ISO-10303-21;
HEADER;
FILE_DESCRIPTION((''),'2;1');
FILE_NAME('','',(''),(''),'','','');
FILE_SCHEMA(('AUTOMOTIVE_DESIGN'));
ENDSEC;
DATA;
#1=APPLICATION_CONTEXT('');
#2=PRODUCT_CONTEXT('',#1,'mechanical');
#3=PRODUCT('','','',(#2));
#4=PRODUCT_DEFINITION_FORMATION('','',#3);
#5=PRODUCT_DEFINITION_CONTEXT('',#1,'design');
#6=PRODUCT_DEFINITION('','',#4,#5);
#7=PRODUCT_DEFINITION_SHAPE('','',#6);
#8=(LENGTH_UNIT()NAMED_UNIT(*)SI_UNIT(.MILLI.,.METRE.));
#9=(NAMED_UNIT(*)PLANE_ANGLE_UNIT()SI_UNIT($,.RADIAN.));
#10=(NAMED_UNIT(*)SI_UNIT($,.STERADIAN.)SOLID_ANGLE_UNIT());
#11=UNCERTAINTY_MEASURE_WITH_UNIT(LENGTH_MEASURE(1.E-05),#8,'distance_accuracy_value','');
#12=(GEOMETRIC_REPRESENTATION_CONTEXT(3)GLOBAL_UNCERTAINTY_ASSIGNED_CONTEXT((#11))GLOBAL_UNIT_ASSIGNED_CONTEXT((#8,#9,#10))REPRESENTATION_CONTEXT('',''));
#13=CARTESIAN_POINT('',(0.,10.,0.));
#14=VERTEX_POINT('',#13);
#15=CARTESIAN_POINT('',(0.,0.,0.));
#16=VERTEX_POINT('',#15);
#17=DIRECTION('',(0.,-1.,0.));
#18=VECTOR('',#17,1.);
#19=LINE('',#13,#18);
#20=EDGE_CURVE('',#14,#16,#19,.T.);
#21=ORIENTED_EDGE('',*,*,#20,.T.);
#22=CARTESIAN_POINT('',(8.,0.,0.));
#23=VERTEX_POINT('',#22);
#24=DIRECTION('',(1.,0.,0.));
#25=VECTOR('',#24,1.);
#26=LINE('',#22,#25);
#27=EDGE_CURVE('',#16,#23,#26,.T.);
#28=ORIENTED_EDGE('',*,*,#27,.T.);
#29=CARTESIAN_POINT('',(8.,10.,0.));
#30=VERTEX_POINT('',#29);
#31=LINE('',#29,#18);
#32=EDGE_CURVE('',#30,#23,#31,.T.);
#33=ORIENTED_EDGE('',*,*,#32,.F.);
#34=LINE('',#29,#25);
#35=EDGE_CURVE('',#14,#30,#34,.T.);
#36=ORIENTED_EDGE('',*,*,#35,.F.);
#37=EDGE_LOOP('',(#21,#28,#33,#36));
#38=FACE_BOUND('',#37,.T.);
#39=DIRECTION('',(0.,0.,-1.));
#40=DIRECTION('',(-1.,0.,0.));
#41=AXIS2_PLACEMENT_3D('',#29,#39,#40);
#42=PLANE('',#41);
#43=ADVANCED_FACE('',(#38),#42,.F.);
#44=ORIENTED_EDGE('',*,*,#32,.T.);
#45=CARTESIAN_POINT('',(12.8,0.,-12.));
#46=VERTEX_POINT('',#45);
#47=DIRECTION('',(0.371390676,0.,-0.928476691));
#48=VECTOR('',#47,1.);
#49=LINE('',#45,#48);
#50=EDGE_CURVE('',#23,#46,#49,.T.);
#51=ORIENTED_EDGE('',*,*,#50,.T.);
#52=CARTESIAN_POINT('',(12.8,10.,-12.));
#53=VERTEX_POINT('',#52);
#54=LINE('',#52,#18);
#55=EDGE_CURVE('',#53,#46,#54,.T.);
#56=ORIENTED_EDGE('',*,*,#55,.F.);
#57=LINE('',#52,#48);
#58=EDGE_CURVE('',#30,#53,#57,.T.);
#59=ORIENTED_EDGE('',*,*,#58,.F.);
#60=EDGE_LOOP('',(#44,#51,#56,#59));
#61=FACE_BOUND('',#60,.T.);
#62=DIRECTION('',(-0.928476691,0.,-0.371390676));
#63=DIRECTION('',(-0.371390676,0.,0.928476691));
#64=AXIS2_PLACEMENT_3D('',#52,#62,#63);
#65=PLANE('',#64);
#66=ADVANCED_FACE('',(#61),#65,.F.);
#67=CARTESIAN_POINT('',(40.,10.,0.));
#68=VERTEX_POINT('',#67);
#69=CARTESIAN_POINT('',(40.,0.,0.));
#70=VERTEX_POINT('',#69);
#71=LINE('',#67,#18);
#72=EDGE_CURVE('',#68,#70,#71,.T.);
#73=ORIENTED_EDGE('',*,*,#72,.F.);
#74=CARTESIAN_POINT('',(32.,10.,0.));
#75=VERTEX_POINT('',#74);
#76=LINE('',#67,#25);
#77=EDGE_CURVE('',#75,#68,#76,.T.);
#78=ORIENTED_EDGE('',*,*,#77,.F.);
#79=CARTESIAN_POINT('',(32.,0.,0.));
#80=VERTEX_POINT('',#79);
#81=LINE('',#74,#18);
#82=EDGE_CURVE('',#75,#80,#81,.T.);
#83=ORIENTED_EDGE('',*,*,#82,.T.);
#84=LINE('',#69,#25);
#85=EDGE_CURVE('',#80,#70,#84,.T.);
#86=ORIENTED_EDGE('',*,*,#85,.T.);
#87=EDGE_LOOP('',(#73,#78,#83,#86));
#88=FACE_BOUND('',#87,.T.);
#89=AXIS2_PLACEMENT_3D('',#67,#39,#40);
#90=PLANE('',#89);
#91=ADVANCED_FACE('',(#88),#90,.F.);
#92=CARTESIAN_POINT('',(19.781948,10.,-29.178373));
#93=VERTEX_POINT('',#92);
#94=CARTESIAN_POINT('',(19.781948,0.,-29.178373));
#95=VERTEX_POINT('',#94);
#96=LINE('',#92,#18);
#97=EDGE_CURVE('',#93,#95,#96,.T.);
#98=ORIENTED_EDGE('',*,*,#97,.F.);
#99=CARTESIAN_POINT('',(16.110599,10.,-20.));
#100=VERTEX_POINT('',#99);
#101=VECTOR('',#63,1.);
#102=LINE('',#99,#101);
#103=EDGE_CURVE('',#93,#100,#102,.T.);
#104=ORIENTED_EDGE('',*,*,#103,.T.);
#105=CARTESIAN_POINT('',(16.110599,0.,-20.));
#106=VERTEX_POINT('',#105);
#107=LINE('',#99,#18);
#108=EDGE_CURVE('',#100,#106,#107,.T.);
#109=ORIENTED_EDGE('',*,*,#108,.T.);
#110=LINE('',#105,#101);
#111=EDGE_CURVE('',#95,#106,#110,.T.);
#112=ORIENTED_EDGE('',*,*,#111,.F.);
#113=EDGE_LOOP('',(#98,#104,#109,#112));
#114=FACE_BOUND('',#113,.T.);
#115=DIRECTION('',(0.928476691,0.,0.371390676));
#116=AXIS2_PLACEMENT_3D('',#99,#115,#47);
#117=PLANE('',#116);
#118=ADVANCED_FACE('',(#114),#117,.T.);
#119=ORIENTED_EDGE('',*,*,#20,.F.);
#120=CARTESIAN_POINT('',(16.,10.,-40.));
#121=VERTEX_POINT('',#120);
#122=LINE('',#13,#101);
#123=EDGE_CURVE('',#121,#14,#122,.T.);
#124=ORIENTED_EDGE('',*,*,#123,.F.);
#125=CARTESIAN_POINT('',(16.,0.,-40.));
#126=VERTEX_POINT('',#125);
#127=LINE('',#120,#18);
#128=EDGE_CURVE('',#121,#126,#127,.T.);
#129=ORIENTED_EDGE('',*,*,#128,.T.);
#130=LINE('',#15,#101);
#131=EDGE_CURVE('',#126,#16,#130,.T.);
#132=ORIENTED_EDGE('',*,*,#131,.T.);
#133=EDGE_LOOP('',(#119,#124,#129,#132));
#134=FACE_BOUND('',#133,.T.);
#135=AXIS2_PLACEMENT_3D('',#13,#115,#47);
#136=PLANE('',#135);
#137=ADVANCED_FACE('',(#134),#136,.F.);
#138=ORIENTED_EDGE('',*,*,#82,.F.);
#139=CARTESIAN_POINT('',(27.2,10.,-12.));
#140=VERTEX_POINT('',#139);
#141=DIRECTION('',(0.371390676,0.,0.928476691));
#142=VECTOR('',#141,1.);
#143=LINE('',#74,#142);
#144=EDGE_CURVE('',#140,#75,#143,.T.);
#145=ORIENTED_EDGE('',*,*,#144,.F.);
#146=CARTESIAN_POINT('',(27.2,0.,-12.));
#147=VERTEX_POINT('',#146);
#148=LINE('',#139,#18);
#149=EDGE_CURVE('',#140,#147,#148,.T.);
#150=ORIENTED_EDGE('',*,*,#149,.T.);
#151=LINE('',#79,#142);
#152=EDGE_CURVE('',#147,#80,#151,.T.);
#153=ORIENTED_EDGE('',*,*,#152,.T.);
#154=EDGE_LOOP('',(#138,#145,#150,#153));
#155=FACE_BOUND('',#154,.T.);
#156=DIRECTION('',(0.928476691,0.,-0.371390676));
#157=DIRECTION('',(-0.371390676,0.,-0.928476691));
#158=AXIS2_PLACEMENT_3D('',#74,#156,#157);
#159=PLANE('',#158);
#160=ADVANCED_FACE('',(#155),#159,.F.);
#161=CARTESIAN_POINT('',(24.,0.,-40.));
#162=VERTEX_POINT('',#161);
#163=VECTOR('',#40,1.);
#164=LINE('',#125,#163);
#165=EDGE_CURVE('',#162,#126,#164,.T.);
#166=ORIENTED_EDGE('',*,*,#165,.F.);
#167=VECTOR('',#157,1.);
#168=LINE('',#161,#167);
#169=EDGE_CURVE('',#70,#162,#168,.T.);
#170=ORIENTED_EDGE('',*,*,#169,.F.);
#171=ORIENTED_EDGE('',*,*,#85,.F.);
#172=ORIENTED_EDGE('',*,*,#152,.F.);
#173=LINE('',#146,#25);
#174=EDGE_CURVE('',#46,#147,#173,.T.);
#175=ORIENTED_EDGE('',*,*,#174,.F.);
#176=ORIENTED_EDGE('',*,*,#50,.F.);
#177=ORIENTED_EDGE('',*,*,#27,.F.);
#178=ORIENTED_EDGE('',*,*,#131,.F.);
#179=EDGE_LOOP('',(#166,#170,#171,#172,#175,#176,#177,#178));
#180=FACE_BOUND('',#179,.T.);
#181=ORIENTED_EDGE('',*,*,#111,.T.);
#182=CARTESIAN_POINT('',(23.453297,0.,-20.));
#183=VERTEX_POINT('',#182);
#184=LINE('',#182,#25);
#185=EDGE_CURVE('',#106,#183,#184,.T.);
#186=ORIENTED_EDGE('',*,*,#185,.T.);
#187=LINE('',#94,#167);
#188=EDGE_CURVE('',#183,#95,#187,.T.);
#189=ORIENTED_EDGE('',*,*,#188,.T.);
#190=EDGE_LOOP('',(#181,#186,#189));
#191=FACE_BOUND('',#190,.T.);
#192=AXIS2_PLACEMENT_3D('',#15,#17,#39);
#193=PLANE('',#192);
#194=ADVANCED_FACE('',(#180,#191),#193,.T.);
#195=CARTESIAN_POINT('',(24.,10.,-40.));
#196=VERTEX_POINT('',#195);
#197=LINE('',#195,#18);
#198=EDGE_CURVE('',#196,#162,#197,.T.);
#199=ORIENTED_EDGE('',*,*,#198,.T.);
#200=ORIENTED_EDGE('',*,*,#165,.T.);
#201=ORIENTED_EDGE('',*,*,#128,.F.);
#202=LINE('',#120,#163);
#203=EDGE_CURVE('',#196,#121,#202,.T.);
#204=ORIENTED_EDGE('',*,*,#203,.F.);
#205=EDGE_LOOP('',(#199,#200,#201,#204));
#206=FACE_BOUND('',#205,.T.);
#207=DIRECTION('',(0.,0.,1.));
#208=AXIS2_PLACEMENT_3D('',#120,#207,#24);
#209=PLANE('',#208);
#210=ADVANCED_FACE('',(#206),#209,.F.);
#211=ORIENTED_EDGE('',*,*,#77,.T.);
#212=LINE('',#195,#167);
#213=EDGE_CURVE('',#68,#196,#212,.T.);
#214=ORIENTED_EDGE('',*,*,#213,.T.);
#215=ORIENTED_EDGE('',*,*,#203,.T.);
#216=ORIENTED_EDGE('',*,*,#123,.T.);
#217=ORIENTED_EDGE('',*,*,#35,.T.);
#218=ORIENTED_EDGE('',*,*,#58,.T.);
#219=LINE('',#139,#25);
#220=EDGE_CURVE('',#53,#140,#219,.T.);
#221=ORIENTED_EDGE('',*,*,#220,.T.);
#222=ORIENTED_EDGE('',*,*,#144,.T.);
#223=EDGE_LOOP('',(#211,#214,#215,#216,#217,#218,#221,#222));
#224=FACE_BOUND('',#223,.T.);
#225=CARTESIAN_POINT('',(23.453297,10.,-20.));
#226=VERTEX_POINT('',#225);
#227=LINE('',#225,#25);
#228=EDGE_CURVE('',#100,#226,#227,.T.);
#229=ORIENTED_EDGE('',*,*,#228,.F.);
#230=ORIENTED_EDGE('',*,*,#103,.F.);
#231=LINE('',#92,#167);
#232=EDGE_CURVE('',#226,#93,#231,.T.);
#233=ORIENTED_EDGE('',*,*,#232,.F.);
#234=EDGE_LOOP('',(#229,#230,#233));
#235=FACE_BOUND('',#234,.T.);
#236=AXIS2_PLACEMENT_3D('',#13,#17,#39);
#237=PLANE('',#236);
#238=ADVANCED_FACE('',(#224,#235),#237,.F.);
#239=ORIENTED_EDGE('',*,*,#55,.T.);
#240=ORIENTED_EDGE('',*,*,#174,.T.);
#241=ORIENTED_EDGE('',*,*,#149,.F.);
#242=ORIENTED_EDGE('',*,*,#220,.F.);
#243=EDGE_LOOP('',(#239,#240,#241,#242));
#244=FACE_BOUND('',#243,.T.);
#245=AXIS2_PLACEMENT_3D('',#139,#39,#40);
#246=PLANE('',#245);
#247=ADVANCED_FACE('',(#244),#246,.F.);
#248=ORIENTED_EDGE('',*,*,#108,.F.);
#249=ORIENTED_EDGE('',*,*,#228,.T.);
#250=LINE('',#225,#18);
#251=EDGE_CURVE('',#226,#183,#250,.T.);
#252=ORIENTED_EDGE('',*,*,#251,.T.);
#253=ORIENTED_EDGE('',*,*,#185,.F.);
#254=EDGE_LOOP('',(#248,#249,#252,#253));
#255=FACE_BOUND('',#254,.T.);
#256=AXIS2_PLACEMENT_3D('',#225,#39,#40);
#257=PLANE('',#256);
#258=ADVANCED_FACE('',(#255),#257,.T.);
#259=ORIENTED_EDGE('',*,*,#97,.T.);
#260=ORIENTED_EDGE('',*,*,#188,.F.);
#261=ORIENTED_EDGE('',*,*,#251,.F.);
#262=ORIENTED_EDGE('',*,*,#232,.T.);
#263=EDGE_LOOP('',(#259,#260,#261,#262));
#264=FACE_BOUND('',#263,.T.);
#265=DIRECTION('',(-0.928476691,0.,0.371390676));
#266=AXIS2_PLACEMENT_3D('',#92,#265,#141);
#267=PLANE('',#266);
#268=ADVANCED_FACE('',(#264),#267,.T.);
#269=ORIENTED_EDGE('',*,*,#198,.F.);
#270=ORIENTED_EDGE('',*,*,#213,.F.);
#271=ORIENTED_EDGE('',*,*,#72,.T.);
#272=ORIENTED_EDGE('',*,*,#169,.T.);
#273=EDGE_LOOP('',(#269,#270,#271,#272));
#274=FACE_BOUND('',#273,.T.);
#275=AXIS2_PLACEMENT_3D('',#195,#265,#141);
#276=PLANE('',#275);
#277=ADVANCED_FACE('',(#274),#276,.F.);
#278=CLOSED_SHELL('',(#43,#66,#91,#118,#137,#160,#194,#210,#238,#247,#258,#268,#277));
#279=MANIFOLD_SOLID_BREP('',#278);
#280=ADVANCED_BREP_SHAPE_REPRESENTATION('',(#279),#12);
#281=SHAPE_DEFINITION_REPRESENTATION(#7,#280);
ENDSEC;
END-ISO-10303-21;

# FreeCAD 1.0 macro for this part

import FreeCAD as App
import Part
import Sketcher
Q = App.Units.Quantity


def add_polygon(sketch, points):
    """Adds a closed chain of lines whose ends are joined by coincident constraints."""
    first, n = sketch.GeometryCount, len(points)
    for a, b in zip(points, points[1:] + points[:1]):
        sketch.addGeometry(Part.LineSegment(App.Vector(*a, 0), App.Vector(*b, 0)), False)
    for i in range(n):
        sketch.addConstraint(Sketcher.Constraint("Coincident", first + i, 2, first + (i + 1) % n, 1))

doc = App.newDocument("Part")
body = doc.addObject("PartDesign::Body", "Body")

# Sketch on XZ plane
sketch1 = body.newObject("Sketcher::SketchObject", "Sketch")
sketch1.AttachmentSupport = (doc.getObject("XZ_Plane"), [""])
sketch1.MapMode = "FlatFace"
add_polygon(sketch1, [(16, -40), (0, 0), (8, 0), (13, -12), (27, -12), (32, 0), (40, 0), (24, -40)])  # lines 0-7
add_polygon(sketch1, [(16, -20), (20, -29), (23, -20)])  # lines 8-10
sketch1.addConstraint([
    Sketcher.Constraint("Horizontal", 1),
    Sketcher.Constraint("Horizontal", 3),
    Sketcher.Constraint("Horizontal", 5),
    Sketcher.Constraint("Horizontal", 7),
    Sketcher.Constraint("Horizontal", 10),
    Sketcher.Constraint("Coincident", 0, 2, -1, 1),
    Sketcher.Constraint("PointOnObject", 4, 2, -1),
    Sketcher.Constraint("Parallel", 0, 2),
    Sketcher.Constraint("Parallel", 4, 6),
    Sketcher.Constraint("Parallel", 2, 8),
    Sketcher.Constraint("Parallel", 6, 9),
    Sketcher.Constraint("Equal", 1, 5),
    Sketcher.Constraint("Equal", 5, 7),
    Sketcher.Constraint("Equal", 2, 4),
    Sketcher.Constraint("DistanceX", 1, 1, 1, 2, Q("8 mm")),
    Sketcher.Constraint("DistanceX", 3, 1, 3, 2, Q("14.4 mm")),
    Sketcher.Constraint("DistanceY", 2, 2, -1, 1, Q("12 mm")),
    Sketcher.Constraint("DistanceX", -1, 1, 4, 2, Q("32 mm")),
    Sketcher.Constraint("DistanceY", 9, 2, -1, 1, Q("20 mm")),
    Sketcher.Constraint("DistanceX", 10, 2, 10, 1, Q("7.342699 mm")),
    Sketcher.Constraint("DistanceX", -1, 1, 10, 2, Q("16.110599 mm")),
])
pad1 = body.newObject("PartDesign::Pad", "Pad")
pad1.Profile = sketch1
pad1.Length = 10
pad1.Reversed = True

doc.recompute()
